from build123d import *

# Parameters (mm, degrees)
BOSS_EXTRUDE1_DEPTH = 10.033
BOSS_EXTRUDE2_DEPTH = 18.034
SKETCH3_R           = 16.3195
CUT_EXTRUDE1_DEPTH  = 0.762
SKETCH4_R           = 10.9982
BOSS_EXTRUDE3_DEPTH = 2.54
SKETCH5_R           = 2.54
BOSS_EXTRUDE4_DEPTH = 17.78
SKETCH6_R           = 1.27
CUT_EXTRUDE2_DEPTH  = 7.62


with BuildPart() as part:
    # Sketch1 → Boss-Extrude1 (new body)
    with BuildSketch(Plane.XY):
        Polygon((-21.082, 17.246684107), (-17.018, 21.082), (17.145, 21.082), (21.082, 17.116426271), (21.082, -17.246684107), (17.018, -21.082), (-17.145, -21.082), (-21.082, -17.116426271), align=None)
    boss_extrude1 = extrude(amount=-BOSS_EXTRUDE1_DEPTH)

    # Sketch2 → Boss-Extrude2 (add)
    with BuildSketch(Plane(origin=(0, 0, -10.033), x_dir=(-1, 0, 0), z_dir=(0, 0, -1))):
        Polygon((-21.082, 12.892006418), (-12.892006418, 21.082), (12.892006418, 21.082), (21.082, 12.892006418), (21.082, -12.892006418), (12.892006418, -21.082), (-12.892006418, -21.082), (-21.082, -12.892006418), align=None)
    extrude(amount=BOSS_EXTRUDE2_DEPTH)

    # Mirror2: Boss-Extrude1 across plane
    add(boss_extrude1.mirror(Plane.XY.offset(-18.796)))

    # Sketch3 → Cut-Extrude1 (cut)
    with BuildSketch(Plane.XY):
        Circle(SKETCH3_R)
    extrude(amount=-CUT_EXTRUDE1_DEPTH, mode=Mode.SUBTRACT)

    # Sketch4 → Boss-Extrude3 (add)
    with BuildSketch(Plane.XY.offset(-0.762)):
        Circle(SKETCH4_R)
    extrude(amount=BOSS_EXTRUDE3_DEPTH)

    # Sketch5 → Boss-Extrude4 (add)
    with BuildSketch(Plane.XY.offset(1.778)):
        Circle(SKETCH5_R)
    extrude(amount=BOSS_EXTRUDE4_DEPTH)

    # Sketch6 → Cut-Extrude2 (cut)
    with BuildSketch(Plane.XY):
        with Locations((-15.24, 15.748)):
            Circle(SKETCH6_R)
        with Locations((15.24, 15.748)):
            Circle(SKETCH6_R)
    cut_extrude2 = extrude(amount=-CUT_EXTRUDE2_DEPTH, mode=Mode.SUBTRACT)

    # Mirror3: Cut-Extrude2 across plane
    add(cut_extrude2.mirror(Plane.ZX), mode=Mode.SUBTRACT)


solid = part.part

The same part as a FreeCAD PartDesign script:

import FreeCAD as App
import Part
import Sketcher
Q = App.Units.Quantity


def add_polygon(sketch, points):
    """Adds a closed chain of lines whose ends are joined by coincident constraints."""
    first, n = sketch.GeometryCount, len(points)
    for a, b in zip(points, points[1:] + points[:1]):
        sketch.addGeometry(Part.LineSegment(App.Vector(*a, 0), App.Vector(*b, 0)), False)
    for i in range(n):
        sketch.addConstraint(Sketcher.Constraint("Coincident", first + i, 2, first + (i + 1) % n, 1))

doc = App.newDocument("Part")
params = doc.addObject("Spreadsheet::Sheet", "Params")
for row, (alias, value) in enumerate([
    ("sketch1_length", "0.22 in"),
    ("sketch1_width", "1.345 in"),
    ("pad1_length", "0.395 in"),
    ("sketch2_length", "0.456 in"),
    ("pad2_length", "0.71 in"),
    ("sketch3_diameter", "1.285 in"),
    ("pocket1_length", "0.03 in"),
    ("sketch4_diameter", "0.866 in"),
    ("pad3_length", "0.1 in"),
    ("sketch5_diameter", "0.2 in"),
    ("pad4_length", "0.7 in"),
    ("sketch6_diameter", "0.1 in"),
    ("pocket2_length", "0.3 in"),
], start=1):
    params.set(f"A{row}", alias)
    params.set(f"B{row}", "=" + value)
    params.setAlias(f"B{row}", alias)

body = doc.addObject("PartDesign::Body", "Body")

sketch1 = body.newObject("Sketcher::SketchObject", "Sketch")
sketch1.AttachmentSupport = (doc.getObject("XY_Plane"), [""])
sketch1.MapMode = "FlatFace"
add_polygon(sketch1, [(-17, 21), (-21, 17), (-21, -17), (-17, -21), (17, -21), (21, -17), (21, 17), (17, 21)])
sketch1.addConstraint([
    Sketcher.Constraint("Vertical", 1),
    Sketcher.Constraint("Horizontal", 3),
    Sketcher.Constraint("Vertical", 5),
    Sketcher.Constraint("Horizontal", 7),
    Sketcher.Constraint("Symmetric", 0, 2, 4, 2, -1, 1),
    Sketcher.Constraint("Symmetric", 2, 2, 6, 2, -1, 1),
    Sketcher.Constraint("Parallel", 0, 4),
    Sketcher.Constraint("Parallel", 2, 6),
    Sketcher.Constraint("Equal", 0, 2),
    Sketcher.Constraint("DistanceX", 1, 2, 3, 2, Q("1.5 in")),
    Sketcher.Constraint("Distance", 0, Q("0.22 in")),
    Sketcher.Constraint("DistanceX", 3, 1, 3, 2, Q("1.345 in")),
    Sketcher.Constraint("DistanceX", 0, 2, -1, 1, Q("0.83 in")),
    Sketcher.Constraint("DistanceY", 2, 2, -1, 1, Q("0.83 in")),
])
sketch1.setExpression("Constraints[18]", "Params.sketch1_length")
sketch1.setExpression("Constraints[19]", "Params.sketch1_width")
pad1 = body.newObject("PartDesign::Pad", "Pad")
pad1.Profile = sketch1
pad1.setExpression("Length", "Params.pad1_length")
pad1.Reversed = True

sketch2 = body.newObject("Sketcher::SketchObject", "Sketch001")
sketch2.AttachmentSupport = (doc.getObject("XY_Plane"), [""])
sketch2.MapMode = "FlatFace"
sketch2.AttachmentOffset = App.Placement(App.Vector(0, 0, -0.395 * 25.4), App.Rotation())
add_polygon(sketch2, [(13, 21), (21, 13), (21, -13), (13, -21), (-13, -21), (-21, -13), (-21, 13), (-13, 21)])
sketch2.addConstraint([
    Sketcher.Constraint("Vertical", 1),
    Sketcher.Constraint("Horizontal", 3),
    Sketcher.Constraint("Vertical", 5),
    Sketcher.Constraint("Horizontal", 7),
    Sketcher.Constraint("Symmetric", 0, 2, 4, 2, -1, 1),
    Sketcher.Constraint("Symmetric", 2, 2, 6, 2, -1, 1),
    Sketcher.Constraint("Perpendicular", 0, 2),
    Sketcher.Constraint("Perpendicular", 2, 4),
    Sketcher.Constraint("Perpendicular", 4, 6),
    Sketcher.Constraint("Horizontal", 1, 2, 4, 2),
    Sketcher.Constraint("Vertical", 3, 2, 6, 2),
    Sketcher.Constraint("Equal", 7, 1),
    Sketcher.Constraint("DistanceX", -1, 1, 0, 2, Q("0.83 in")),
    Sketcher.Constraint("Distance", 0, Q("0.456 in")),
])
sketch2.setExpression("Constraints[21]", "Params.sketch2_length")
pad2 = body.newObject("PartDesign::Pad", "Pad001")
pad2.Profile = sketch2
pad2.setExpression("Length", "Params.pad2_length")
pad2.Reversed = True
doc.recompute()

datumplane = body.newObject("PartDesign::Plane", "DatumPlane")
datumplane.AttachmentSupport = (doc.getObject("XY_Plane"), [""])
datumplane.MapMode = "FlatFace"
datumplane.AttachmentOffset = App.Placement(App.Vector(0, 0, -0.74 * 25.4), App.Rotation())
mirrored = body.newObject("PartDesign::Mirrored", "Mirrored")
mirrored.Originals = [pad1]
mirrored.MirrorPlane = (datumplane, [""])
body.Tip = mirrored

sketch3 = body.newObject("Sketcher::SketchObject", "Sketch002")
sketch3.AttachmentSupport = (doc.getObject("XY_Plane"), [""])
sketch3.MapMode = "FlatFace"
sketch3.addGeometry(Part.Circle(App.Vector(0, 0, 0), App.Vector(0, 0, 1), 16), False)
sketch3.addConstraint([
    Sketcher.Constraint("Coincident", 0, 3, -1, 1),
    Sketcher.Constraint("Diameter", 0, Q("1.285 in")),
])
sketch3.setExpression("Constraints[1]", "Params.sketch3_diameter")
pocket1 = body.newObject("PartDesign::Pocket", "Pocket")
pocket1.Profile = sketch3
pocket1.setExpression("Length", "Params.pocket1_length")

sketch4 = body.newObject("Sketcher::SketchObject", "Sketch003")
sketch4.AttachmentSupport = (doc.getObject("XY_Plane"), [""])
sketch4.MapMode = "FlatFace"
sketch4.AttachmentOffset = App.Placement(App.Vector(0, 0, -0.03 * 25.4), App.Rotation())
sketch4.addGeometry(Part.Circle(App.Vector(0, 0, 0), App.Vector(0, 0, 1), 11), False)
sketch4.addConstraint([
    Sketcher.Constraint("Coincident", 0, 3, -1, 1),
    Sketcher.Constraint("Diameter", 0, Q("0.866 in")),
])
sketch4.setExpression("Constraints[1]", "Params.sketch4_diameter")
pad3 = body.newObject("PartDesign::Pad", "Pad002")
pad3.Profile = sketch4
pad3.setExpression("Length", "Params.pad3_length")

sketch5 = body.newObject("Sketcher::SketchObject", "Sketch004")
sketch5.AttachmentSupport = (doc.getObject("XY_Plane"), [""])
sketch5.MapMode = "FlatFace"
sketch5.AttachmentOffset = App.Placement(App.Vector(0, 0, 0.07 * 25.4), App.Rotation())
sketch5.addGeometry(Part.Circle(App.Vector(0, 0, 0), App.Vector(0, 0, 1), 2.5), False)
sketch5.addConstraint([
    Sketcher.Constraint("Coincident", 0, 3, -1, 1),
    Sketcher.Constraint("Diameter", 0, Q("0.2 in")),
])
sketch5.setExpression("Constraints[1]", "Params.sketch5_diameter")
pad4 = body.newObject("PartDesign::Pad", "Pad003")
pad4.Profile = sketch5
pad4.setExpression("Length", "Params.pad4_length")

sketch6 = body.newObject("Sketcher::SketchObject", "Sketch005")
sketch6.AttachmentSupport = (doc.getObject("XY_Plane"), [""])
sketch6.MapMode = "FlatFace"
sketch6.addGeometry([
    Part.Circle(App.Vector(-15.2, 15.7, 0), App.Vector(0, 0, 1), 1.3),
    Part.Circle(App.Vector(15.2, 15.7, 0), App.Vector(0, 0, 1), 1.3),
], False)
sketch6.addConstraint([
    Sketcher.Constraint("Equal", 0, 1),
    Sketcher.Constraint("Symmetric", 0, 3, 1, 3, -2),
    Sketcher.Constraint("Diameter", 0, Q("0.1 in")),
    Sketcher.Constraint("DistanceX", 0, 3, -1, 1, Q("0.6 in")),
    Sketcher.Constraint("DistanceY", -1, 1, 0, 3, Q("0.62 in")),
])
sketch6.setExpression("Constraints[2]", "Params.sketch6_diameter")
pocket2 = body.newObject("PartDesign::Pocket", "Pocket001")
pocket2.Profile = sketch6
pocket2.setExpression("Length", "Params.pocket2_length")
doc.recompute()

mirrored2 = body.newObject("PartDesign::Mirrored", "Mirrored001")
mirrored2.Originals = [pocket2]
mirrored2.MirrorPlane = (doc.getObject("XZ_Plane"), [""])
body.Tip = mirrored2

doc.recompute()
